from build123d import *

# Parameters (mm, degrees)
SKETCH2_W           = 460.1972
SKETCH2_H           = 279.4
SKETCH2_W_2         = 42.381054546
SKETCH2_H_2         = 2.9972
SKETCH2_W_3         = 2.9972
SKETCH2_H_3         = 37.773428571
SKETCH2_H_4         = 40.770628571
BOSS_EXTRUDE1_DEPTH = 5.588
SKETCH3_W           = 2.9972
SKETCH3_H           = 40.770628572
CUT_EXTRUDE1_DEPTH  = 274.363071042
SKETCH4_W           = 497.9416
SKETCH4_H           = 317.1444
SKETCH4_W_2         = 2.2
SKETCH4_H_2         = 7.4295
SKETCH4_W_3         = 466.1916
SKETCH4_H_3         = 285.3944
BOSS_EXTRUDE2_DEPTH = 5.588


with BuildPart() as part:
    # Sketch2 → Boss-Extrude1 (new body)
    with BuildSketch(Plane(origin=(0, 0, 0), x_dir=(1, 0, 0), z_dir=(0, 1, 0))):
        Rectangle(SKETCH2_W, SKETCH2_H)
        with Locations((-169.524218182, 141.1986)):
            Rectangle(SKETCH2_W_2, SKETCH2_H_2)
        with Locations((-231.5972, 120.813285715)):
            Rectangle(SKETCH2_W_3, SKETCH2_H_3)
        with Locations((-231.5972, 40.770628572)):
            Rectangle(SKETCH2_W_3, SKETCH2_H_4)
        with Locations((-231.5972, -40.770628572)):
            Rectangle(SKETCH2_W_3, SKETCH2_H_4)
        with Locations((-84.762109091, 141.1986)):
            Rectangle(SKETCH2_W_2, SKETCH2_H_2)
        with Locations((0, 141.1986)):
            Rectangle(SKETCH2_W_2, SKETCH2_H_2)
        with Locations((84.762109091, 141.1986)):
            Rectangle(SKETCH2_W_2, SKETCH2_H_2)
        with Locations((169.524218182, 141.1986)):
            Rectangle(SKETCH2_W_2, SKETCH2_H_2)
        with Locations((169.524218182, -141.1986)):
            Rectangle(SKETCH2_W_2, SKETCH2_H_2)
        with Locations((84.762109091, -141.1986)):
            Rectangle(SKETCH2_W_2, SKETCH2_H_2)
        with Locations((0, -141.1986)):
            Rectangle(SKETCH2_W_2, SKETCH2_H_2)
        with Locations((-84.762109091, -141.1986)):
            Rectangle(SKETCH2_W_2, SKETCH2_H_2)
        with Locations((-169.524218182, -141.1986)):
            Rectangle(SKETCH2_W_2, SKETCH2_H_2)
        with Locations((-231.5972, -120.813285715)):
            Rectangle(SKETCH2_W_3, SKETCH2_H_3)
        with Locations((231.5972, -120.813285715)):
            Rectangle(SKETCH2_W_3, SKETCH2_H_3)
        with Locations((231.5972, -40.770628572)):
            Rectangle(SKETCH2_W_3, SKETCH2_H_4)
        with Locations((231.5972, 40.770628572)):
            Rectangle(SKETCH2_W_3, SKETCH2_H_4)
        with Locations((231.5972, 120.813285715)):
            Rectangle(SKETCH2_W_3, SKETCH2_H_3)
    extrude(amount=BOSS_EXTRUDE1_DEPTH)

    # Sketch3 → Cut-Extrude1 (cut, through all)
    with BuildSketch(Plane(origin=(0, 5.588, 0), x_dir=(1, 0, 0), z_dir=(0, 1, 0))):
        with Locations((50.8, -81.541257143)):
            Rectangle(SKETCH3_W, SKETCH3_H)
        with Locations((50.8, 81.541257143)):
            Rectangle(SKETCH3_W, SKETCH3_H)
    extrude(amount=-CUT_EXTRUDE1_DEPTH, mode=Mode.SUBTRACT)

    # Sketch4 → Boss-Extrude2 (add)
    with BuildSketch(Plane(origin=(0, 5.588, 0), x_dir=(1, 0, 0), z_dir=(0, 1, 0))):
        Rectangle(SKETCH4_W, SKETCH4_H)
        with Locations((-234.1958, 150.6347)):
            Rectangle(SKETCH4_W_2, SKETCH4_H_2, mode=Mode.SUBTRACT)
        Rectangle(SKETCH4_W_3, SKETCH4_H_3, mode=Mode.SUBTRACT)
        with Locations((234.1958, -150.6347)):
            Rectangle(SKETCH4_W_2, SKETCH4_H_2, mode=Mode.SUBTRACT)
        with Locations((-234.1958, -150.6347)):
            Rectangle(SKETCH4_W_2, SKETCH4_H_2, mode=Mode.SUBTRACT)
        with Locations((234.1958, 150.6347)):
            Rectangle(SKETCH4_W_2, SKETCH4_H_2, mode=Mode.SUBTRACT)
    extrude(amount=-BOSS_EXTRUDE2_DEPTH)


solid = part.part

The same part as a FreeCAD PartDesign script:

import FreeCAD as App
import Part
import Sketcher

V = App.Vector
Q = App.Units.Quantity


def add_polygon(sketch, points):
    """Adds a closed chain of lines whose ends are joined by coincident constraints."""
    first, n = sketch.GeometryCount, len(points)
    for a, b in zip(points, points[1:] + points[:1]):
        sketch.addGeometry(Part.LineSegment(App.Vector(*a, 0), App.Vector(*b, 0)), False)
    for i in range(n):
        sketch.addConstraint(Sketcher.Constraint("Coincident", first + i, 2, first + (i + 1) % n, 1))

doc = App.newDocument("Part")
body = doc.addObject("PartDesign::Body", "Body")

sketch1 = body.newObject("Sketcher::SketchObject", "Sketch")
sketch1.AttachmentSupport = (doc.getObject("XZ_Plane"), [""])
sketch1.MapMode = "FlatFace"
add_polygon(sketch1, [(-230.0986, 61.155943), (-230.0986, 101.926571), (-233.0958, 101.926571), (-233.0958, 139.7), (-230.0986, 139.7), (-190.714745, 139.7), (-190.714745, 142.6972), (-148.333691, 142.6972), (-148.333691, 139.7), (-105.952636, 139.7), (-105.952636, 142.6972), (-63.571582, 142.6972), (-63.571582, 139.7), (-21.190527, 139.7), (-21.190527, 142.6972), (21.190527, 142.6972), (21.190527, 139.7), (63.571582, 139.7), (63.571582, 142.6972), (105.952636, 142.6972), (105.952636, 139.7), (148.333691, 139.7), (148.333691, 142.6972), (190.714745, 142.6972), (190.714745, 139.7), (230.0986, 139.7), (233.0958, 139.7), (233.0958, 101.926571), (230.0986, 101.926571), (230.0986, 61.155943), (233.0958, 61.155943), (233.0958, 20.385314), (230.0986, 20.385314), (230.0986, -20.385314), (233.0958, -20.385314), (233.0958, -61.155943), (230.0986, -61.155943), (230.0986, -101.926571), (233.0958, -101.926571), (233.0958, -139.7), (230.0986, -139.7), (190.714745, -139.7), (190.714745, -142.6972), (148.333691, -142.6972), (148.333691, -139.7), (105.952636, -139.7), (105.952636, -142.6972), (63.571582, -142.6972), (63.571582, -139.7), (21.190527, -139.7), (21.190527, -142.6972), (-21.190527, -142.6972), (-21.190527, -139.7), (-63.571582, -139.7), (-63.571582, -142.6972), (-105.952636, -142.6972), (-105.952636, -139.7), (-148.333691, -139.7), (-148.333691, -142.6972), (-190.714745, -142.6972), (-190.714745, -139.7), (-230.0986, -139.7), (-233.0958, -139.7), (-233.0958, -101.926571), (-230.0986, -101.926571), (-230.0986, -61.155943), (-233.0958, -61.155943), (-233.0958, -20.385314), (-230.0986, -20.385314), (-230.0986, 20.385314), (-233.0958, 20.385314), (-233.0958, 61.155943)])
sketch1.addConstraint(Sketcher.Constraint("Vertical", 0))
sketch1.addConstraint(Sketcher.Constraint("Horizontal", 1))
sketch1.addConstraint(Sketcher.Constraint("Vertical", 2))
sketch1.addConstraint(Sketcher.Constraint("Horizontal", 3))
sketch1.addConstraint(Sketcher.Constraint("Horizontal", 4))
sketch1.addConstraint(Sketcher.Constraint("Vertical", 5))
sketch1.addConstraint(Sketcher.Constraint("Horizontal", 6))
sketch1.addConstraint(Sketcher.Constraint("Vertical", 7))
sketch1.addConstraint(Sketcher.Constraint("Horizontal", 8))
sketch1.addConstraint(Sketcher.Constraint("Vertical", 9))
sketch1.addConstraint(Sketcher.Constraint("Horizontal", 10))
sketch1.addConstraint(Sketcher.Constraint("Vertical", 11))
sketch1.addConstraint(Sketcher.Constraint("Horizontal", 12))
sketch1.addConstraint(Sketcher.Constraint("Vertical", 13))
sketch1.addConstraint(Sketcher.Constraint("Horizontal", 14))
sketch1.addConstraint(Sketcher.Constraint("Vertical", 15))
sketch1.addConstraint(Sketcher.Constraint("Horizontal", 16))
sketch1.addConstraint(Sketcher.Constraint("Vertical", 17))
sketch1.addConstraint(Sketcher.Constraint("Horizontal", 18))
sketch1.addConstraint(Sketcher.Constraint("Vertical", 19))
sketch1.addConstraint(Sketcher.Constraint("Horizontal", 20))
sketch1.addConstraint(Sketcher.Constraint("Vertical", 21))
sketch1.addConstraint(Sketcher.Constraint("Horizontal", 22))
sketch1.addConstraint(Sketcher.Constraint("Vertical", 23))
sketch1.addConstraint(Sketcher.Constraint("Horizontal", 24))
sketch1.addConstraint(Sketcher.Constraint("Horizontal", 25))
sketch1.addConstraint(Sketcher.Constraint("Vertical", 26))
sketch1.addConstraint(Sketcher.Constraint("Horizontal", 27))
sketch1.addConstraint(Sketcher.Constraint("Vertical", 28))
sketch1.addConstraint(Sketcher.Constraint("Horizontal", 29))
sketch1.addConstraint(Sketcher.Constraint("Vertical", 30))
sketch1.addConstraint(Sketcher.Constraint("Horizontal", 31))
sketch1.addConstraint(Sketcher.Constraint("Vertical", 32))
sketch1.addConstraint(Sketcher.Constraint("Horizontal", 33))
sketch1.addConstraint(Sketcher.Constraint("Vertical", 34))
sketch1.addConstraint(Sketcher.Constraint("Horizontal", 35))
sketch1.addConstraint(Sketcher.Constraint("Vertical", 36))
sketch1.addConstraint(Sketcher.Constraint("Horizontal", 37))
sketch1.addConstraint(Sketcher.Constraint("Vertical", 38))
sketch1.addConstraint(Sketcher.Constraint("Horizontal", 39))
sketch1.addConstraint(Sketcher.Constraint("Horizontal", 40))
sketch1.addConstraint(Sketcher.Constraint("Vertical", 41))
sketch1.addConstraint(Sketcher.Constraint("Horizontal", 42))
sketch1.addConstraint(Sketcher.Constraint("Vertical", 43))
sketch1.addConstraint(Sketcher.Constraint("Horizontal", 44))
sketch1.addConstraint(Sketcher.Constraint("Vertical", 45))
sketch1.addConstraint(Sketcher.Constraint("Horizontal", 46))
sketch1.addConstraint(Sketcher.Constraint("Vertical", 47))
sketch1.addConstraint(Sketcher.Constraint("Horizontal", 48))
sketch1.addConstraint(Sketcher.Constraint("Vertical", 49))
sketch1.addConstraint(Sketcher.Constraint("Horizontal", 50))
sketch1.addConstraint(Sketcher.Constraint("Vertical", 51))
sketch1.addConstraint(Sketcher.Constraint("Horizontal", 52))
sketch1.addConstraint(Sketcher.Constraint("Vertical", 53))
sketch1.addConstraint(Sketcher.Constraint("Horizontal", 54))
sketch1.addConstraint(Sketcher.Constraint("Vertical", 55))
sketch1.addConstraint(Sketcher.Constraint("Horizontal", 56))
sketch1.addConstraint(Sketcher.Constraint("Vertical", 57))
sketch1.addConstraint(Sketcher.Constraint("Horizontal", 58))
sketch1.addConstraint(Sketcher.Constraint("Vertical", 59))
sketch1.addConstraint(Sketcher.Constraint("Horizontal", 60))
sketch1.addConstraint(Sketcher.Constraint("Horizontal", 61))
sketch1.addConstraint(Sketcher.Constraint("Vertical", 62))
sketch1.addConstraint(Sketcher.Constraint("Horizontal", 63))
sketch1.addConstraint(Sketcher.Constraint("Vertical", 64))
sketch1.addConstraint(Sketcher.Constraint("Horizontal", 65))
sketch1.addConstraint(Sketcher.Constraint("Vertical", 66))
sketch1.addConstraint(Sketcher.Constraint("Horizontal", 67))
sketch1.addConstraint(Sketcher.Constraint("Vertical", 68))
sketch1.addConstraint(Sketcher.Constraint("Horizontal", 69))
sketch1.addConstraint(Sketcher.Constraint("Vertical", 70))
sketch1.addConstraint(Sketcher.Constraint("Horizontal", 71))
sketch1.addConstraint(Sketcher.Constraint("Symmetric", 0, 2, 36, 2, -1, 1))
sketch1.addConstraint(Sketcher.Constraint("Symmetric", 2, 2, 38, 2, -1, 1))
sketch1.addConstraint(Sketcher.Constraint("Symmetric", 5, 2, 41, 2, -1, 1))
sketch1.addConstraint(Sketcher.Constraint("Symmetric", 7, 2, 43, 2, -1, 1))
sketch1.addConstraint(Sketcher.Constraint("Symmetric", 9, 2, 45, 2, -1, 1))
sketch1.addConstraint(Sketcher.Constraint("Symmetric", 11, 2, 47, 2, -1, 1))
sketch1.addConstraint(Sketcher.Constraint("Symmetric", 13, 2, 49, 2, -1, 1))
sketch1.addConstraint(Sketcher.Constraint("Symmetric", 15, 2, 51, 2, -1, 1))
sketch1.addConstraint(Sketcher.Constraint("Symmetric", 17, 2, 53, 2, -1, 1))
sketch1.addConstraint(Sketcher.Constraint("Symmetric", 19, 2, 55, 2, -1, 1))
sketch1.addConstraint(Sketcher.Constraint("Symmetric", 21, 2, 57, 2, -1, 1))
sketch1.addConstraint(Sketcher.Constraint("Symmetric", 23, 2, 59, 2, -1, 1))
sketch1.addConstraint(Sketcher.Constraint("Symmetric", 26, 2, 62, 2, -1, 1))
sketch1.addConstraint(Sketcher.Constraint("Symmetric", 28, 2, 64, 2, -1, 1))
sketch1.addConstraint(Sketcher.Constraint("Symmetric", 30, 2, 66, 2, -1, 1))
sketch1.addConstraint(Sketcher.Constraint("Symmetric", 32, 2, 68, 2, -1, 1))
sketch1.addConstraint(Sketcher.Constraint("Symmetric", 34, 2, 70, 2, -1, 1))
sketch1.addConstraint(Sketcher.Constraint("Symmetric", 12, 2, 15, 2, -2))
sketch1.addConstraint(Sketcher.Constraint("Symmetric", 10, 2, 17, 2, -2))
sketch1.addConstraint(Sketcher.Constraint("Symmetric", 8, 2, 19, 2, -2))
sketch1.addConstraint(Sketcher.Constraint("Symmetric", 6, 2, 21, 2, -2))
sketch1.addConstraint(Sketcher.Constraint("Symmetric", 4, 2, 23, 2, -2))
sketch1.addConstraint(Sketcher.Constraint("Symmetric", 1, 2, 26, 2, -2))
sketch1.addConstraint(Sketcher.Constraint("Symmetric", 35, 2, 64, 2, -2))
sketch1.addConstraint(Sketcher.Constraint("Symmetric", 33, 2, 66, 2, -2))
sketch1.addConstraint(Sketcher.Constraint("Horizontal", 4, 2, 7, 2))
sketch1.addConstraint(Sketcher.Constraint("Horizontal", 6, 2, 9, 2))
sketch1.addConstraint(Sketcher.Constraint("Horizontal", 8, 2, 11, 2))
sketch1.addConstraint(Sketcher.Constraint("Horizontal", 10, 2, 13, 2))
sketch1.addConstraint(Sketcher.Constraint("Vertical", 0, 2, 3, 2))
sketch1.addConstraint(Sketcher.Constraint("Vertical", 24, 2, 27, 2))
sketch1.addConstraint(Sketcher.Constraint("Vertical", 26, 2, 29, 2))
sketch1.addConstraint(Sketcher.Constraint("Vertical", 28, 2, 31, 2))
sketch1.addConstraint(Sketcher.Constraint("Vertical", 36, 2, 39, 2))
sketch1.addConstraint(Sketcher.Constraint("Vertical", 3, 2, 60, 2))
sketch1.addConstraint(Sketcher.Constraint("Equal", 6, 8))
sketch1.addConstraint(Sketcher.Constraint("Equal", 8, 10))
sketch1.addConstraint(Sketcher.Constraint("Equal", 10, 12))
sketch1.addConstraint(Sketcher.Constraint("Equal", 12, 14))
sketch1.addConstraint(Sketcher.Constraint("Equal", 71, 5))
sketch1.addConstraint(Sketcher.Constraint("Equal", 28, 30))
sketch1.addConstraint(Sketcher.Constraint("Equal", 30, 32))
sketch1.addConstraint(Sketcher.Constraint("DistanceY", -1, 1, 2, 2, Q("5.5 in")))
sketch1.addConstraint(Sketcher.Constraint("DistanceX", 1, 2, 1, 1, Q("0.118 in")))
sketch1.addConstraint(Sketcher.Constraint("DistanceX", 0, 2, -1, 1, Q("9.059 in")))
sketch1.addConstraint(Sketcher.Constraint("DistanceY", 0, 1, 0, 2, 40.770629))
sketch1.addConstraint(Sketcher.Constraint("DistanceX", 4, 1, 4, 2, 39.383855))
pad1 = body.newObject("PartDesign::Pad", "Pad")
pad1.Profile = sketch1
pad1.Length = Q("0.22 in")
pad1.Reversed = True

sketch2 = body.newObject("Sketcher::SketchObject", "Sketch001")
sketch2.AttachmentSupport = (doc.getObject("XZ_Plane"), [""])
sketch2.MapMode = "FlatFace"
sketch2.AttachmentOffset = App.Placement(V(0, 0, -0.22 * 25.4), App.Rotation())
add_polygon(sketch2, [(49.3014, 61.155943), (49.3014, 101.926571), (52.2986, 101.926571), (52.2986, 61.155943)])
add_polygon(sketch2, [(49.3014, -101.926571), (49.3014, -61.155943), (52.2986, -61.155943), (52.2986, -101.926571)])
sketch2.addConstraint(Sketcher.Constraint("Vertical", 0))
sketch2.addConstraint(Sketcher.Constraint("Horizontal", 1))
sketch2.addConstraint(Sketcher.Constraint("Vertical", 2))
sketch2.addConstraint(Sketcher.Constraint("Horizontal", 3))
sketch2.addConstraint(Sketcher.Constraint("Vertical", 4))
sketch2.addConstraint(Sketcher.Constraint("Horizontal", 5))
sketch2.addConstraint(Sketcher.Constraint("Vertical", 6))
sketch2.addConstraint(Sketcher.Constraint("Horizontal", 7))
sketch2.addConstraint(Sketcher.Constraint("Symmetric", 3, 2, 4, 2, -1))
sketch2.addConstraint(Sketcher.Constraint("Symmetric", 1, 2, 6, 2, -1))
sketch2.addConstraint(Sketcher.Constraint("DistanceX", 1, 1, 1, 2, Q("0.118 in")))
sketch2.addConstraint(Sketcher.Constraint("DistanceX", -1, 1, 0, 2, Q("1.941 in")))
sketch2.addConstraint(Sketcher.Constraint("DistanceY", 0, 1, 0, 2, 40.770629))
sketch2.addConstraint(Sketcher.Constraint("DistanceY", -1, 1, 0, 2, 101.926571))
pocket1 = body.newObject("PartDesign::Pocket", "Pocket")
pocket1.Profile = sketch2
pocket1.Type = "ThroughAll"
pocket1.Reversed = True

sketch3 = body.newObject("Sketcher::SketchObject", "Sketch002")
sketch3.AttachmentSupport = (doc.getObject("XZ_Plane"), [""])
sketch3.MapMode = "FlatFace"
sketch3.AttachmentOffset = App.Placement(V(0, 0, -0.22 * 25.4), App.Rotation())
add_polygon(sketch3, [(-248.9708, -158.5722), (-248.9708, 158.5722), (248.9708, 158.5722), (248.9708, -158.5722)])
add_polygon(sketch3, [(-233.0958, 154.34945), (-235.2958, 154.34945), (-235.2958, 146.91995), (-233.0958, 146.91995)])
add_polygon(sketch3, [(235.2958, 154.34945), (233.0958, 154.34945), (233.0958, 146.91995), (235.2958, 146.91995)])
add_polygon(sketch3, [(-233.0958, -146.91995), (-235.2958, -146.91995), (-235.2958, -154.34945), (-233.0958, -154.34945)])
add_polygon(sketch3, [(233.0958, 142.6972), (-233.0958, 142.6972), (-233.0958, -142.6972), (233.0958, -142.6972)])
add_polygon(sketch3, [(235.2958, -146.91995), (233.0958, -146.91995), (233.0958, -154.34945), (235.2958, -154.34945)])
sketch3.addConstraint(Sketcher.Constraint("Vertical", 0))
sketch3.addConstraint(Sketcher.Constraint("Horizontal", 1))
sketch3.addConstraint(Sketcher.Constraint("Vertical", 2))
sketch3.addConstraint(Sketcher.Constraint("Horizontal", 3))
sketch3.addConstraint(Sketcher.Constraint("Horizontal", 4))
sketch3.addConstraint(Sketcher.Constraint("Vertical", 5))
sketch3.addConstraint(Sketcher.Constraint("Horizontal", 6))
sketch3.addConstraint(Sketcher.Constraint("Vertical", 7))
sketch3.addConstraint(Sketcher.Constraint("Horizontal", 8))
sketch3.addConstraint(Sketcher.Constraint("Vertical", 9))
sketch3.addConstraint(Sketcher.Constraint("Horizontal", 10))
sketch3.addConstraint(Sketcher.Constraint("Vertical", 11))
sketch3.addConstraint(Sketcher.Constraint("Horizontal", 12))
sketch3.addConstraint(Sketcher.Constraint("Vertical", 13))
sketch3.addConstraint(Sketcher.Constraint("Horizontal", 14))
sketch3.addConstraint(Sketcher.Constraint("Vertical", 15))
sketch3.addConstraint(Sketcher.Constraint("Horizontal", 16))
sketch3.addConstraint(Sketcher.Constraint("Vertical", 17))
sketch3.addConstraint(Sketcher.Constraint("Horizontal", 18))
sketch3.addConstraint(Sketcher.Constraint("Vertical", 19))
sketch3.addConstraint(Sketcher.Constraint("Horizontal", 20))
sketch3.addConstraint(Sketcher.Constraint("Vertical", 21))
sketch3.addConstraint(Sketcher.Constraint("Horizontal", 22))
sketch3.addConstraint(Sketcher.Constraint("Vertical", 23))
sketch3.addConstraint(Sketcher.Constraint("Symmetric", 0, 2, 2, 2, -1, 1))
sketch3.addConstraint(Sketcher.Constraint("Symmetric", 10, 2, 12, 2, -1, 1))
sketch3.addConstraint(Sketcher.Constraint("Symmetric", 8, 2, 14, 2, -1, 1))
sketch3.addConstraint(Sketcher.Constraint("Symmetric", 16, 2, 18, 2, -1, 1))
sketch3.addConstraint(Sketcher.Constraint("Symmetric", 6, 2, 20, 2, -1, 1))
sketch3.addConstraint(Sketcher.Constraint("Symmetric", 4, 2, 22, 2, -1, 1))
sketch3.addConstraint(Sketcher.Constraint("Symmetric", 7, 2, 8, 2, -2))
sketch3.addConstraint(Sketcher.Constraint("Symmetric", 5, 2, 10, 2, -2))
sketch3.addConstraint(Sketcher.Constraint("Vertical", 15, 2, 16, 2))
sketch3.addConstraint(Sketcher.Constraint("DistanceX", 1, 1, 1, 2, Q("19.604 in")))
sketch3.addConstraint(Sketcher.Constraint("DistanceX", 16, 2, 16, 1, Q("18.354 in")))
sketch3.addConstraint(Sketcher.Constraint("DistanceY", 0, 1, 0, 2, Q("12.486 in")))
sketch3.addConstraint(Sketcher.Constraint("DistanceY", 17, 2, 17, 1, Q("11.236 in")))
sketch3.addConstraint(Sketcher.Constraint("DistanceY", 5, 2, 5, 1, Q("0.2925 in")))
sketch3.addConstraint(Sketcher.Constraint("DistanceY", 12, 2, 4, 2, Q("11.861 in")))
sketch3.addConstraint(Sketcher.Constraint("DistanceX", 4, 2, 4, 1, 2.2))
pad2 = body.newObject("PartDesign::Pad", "Pad001")
pad2.Profile = sketch3
pad2.Length = Q("0.22 in")

doc.recompute()
